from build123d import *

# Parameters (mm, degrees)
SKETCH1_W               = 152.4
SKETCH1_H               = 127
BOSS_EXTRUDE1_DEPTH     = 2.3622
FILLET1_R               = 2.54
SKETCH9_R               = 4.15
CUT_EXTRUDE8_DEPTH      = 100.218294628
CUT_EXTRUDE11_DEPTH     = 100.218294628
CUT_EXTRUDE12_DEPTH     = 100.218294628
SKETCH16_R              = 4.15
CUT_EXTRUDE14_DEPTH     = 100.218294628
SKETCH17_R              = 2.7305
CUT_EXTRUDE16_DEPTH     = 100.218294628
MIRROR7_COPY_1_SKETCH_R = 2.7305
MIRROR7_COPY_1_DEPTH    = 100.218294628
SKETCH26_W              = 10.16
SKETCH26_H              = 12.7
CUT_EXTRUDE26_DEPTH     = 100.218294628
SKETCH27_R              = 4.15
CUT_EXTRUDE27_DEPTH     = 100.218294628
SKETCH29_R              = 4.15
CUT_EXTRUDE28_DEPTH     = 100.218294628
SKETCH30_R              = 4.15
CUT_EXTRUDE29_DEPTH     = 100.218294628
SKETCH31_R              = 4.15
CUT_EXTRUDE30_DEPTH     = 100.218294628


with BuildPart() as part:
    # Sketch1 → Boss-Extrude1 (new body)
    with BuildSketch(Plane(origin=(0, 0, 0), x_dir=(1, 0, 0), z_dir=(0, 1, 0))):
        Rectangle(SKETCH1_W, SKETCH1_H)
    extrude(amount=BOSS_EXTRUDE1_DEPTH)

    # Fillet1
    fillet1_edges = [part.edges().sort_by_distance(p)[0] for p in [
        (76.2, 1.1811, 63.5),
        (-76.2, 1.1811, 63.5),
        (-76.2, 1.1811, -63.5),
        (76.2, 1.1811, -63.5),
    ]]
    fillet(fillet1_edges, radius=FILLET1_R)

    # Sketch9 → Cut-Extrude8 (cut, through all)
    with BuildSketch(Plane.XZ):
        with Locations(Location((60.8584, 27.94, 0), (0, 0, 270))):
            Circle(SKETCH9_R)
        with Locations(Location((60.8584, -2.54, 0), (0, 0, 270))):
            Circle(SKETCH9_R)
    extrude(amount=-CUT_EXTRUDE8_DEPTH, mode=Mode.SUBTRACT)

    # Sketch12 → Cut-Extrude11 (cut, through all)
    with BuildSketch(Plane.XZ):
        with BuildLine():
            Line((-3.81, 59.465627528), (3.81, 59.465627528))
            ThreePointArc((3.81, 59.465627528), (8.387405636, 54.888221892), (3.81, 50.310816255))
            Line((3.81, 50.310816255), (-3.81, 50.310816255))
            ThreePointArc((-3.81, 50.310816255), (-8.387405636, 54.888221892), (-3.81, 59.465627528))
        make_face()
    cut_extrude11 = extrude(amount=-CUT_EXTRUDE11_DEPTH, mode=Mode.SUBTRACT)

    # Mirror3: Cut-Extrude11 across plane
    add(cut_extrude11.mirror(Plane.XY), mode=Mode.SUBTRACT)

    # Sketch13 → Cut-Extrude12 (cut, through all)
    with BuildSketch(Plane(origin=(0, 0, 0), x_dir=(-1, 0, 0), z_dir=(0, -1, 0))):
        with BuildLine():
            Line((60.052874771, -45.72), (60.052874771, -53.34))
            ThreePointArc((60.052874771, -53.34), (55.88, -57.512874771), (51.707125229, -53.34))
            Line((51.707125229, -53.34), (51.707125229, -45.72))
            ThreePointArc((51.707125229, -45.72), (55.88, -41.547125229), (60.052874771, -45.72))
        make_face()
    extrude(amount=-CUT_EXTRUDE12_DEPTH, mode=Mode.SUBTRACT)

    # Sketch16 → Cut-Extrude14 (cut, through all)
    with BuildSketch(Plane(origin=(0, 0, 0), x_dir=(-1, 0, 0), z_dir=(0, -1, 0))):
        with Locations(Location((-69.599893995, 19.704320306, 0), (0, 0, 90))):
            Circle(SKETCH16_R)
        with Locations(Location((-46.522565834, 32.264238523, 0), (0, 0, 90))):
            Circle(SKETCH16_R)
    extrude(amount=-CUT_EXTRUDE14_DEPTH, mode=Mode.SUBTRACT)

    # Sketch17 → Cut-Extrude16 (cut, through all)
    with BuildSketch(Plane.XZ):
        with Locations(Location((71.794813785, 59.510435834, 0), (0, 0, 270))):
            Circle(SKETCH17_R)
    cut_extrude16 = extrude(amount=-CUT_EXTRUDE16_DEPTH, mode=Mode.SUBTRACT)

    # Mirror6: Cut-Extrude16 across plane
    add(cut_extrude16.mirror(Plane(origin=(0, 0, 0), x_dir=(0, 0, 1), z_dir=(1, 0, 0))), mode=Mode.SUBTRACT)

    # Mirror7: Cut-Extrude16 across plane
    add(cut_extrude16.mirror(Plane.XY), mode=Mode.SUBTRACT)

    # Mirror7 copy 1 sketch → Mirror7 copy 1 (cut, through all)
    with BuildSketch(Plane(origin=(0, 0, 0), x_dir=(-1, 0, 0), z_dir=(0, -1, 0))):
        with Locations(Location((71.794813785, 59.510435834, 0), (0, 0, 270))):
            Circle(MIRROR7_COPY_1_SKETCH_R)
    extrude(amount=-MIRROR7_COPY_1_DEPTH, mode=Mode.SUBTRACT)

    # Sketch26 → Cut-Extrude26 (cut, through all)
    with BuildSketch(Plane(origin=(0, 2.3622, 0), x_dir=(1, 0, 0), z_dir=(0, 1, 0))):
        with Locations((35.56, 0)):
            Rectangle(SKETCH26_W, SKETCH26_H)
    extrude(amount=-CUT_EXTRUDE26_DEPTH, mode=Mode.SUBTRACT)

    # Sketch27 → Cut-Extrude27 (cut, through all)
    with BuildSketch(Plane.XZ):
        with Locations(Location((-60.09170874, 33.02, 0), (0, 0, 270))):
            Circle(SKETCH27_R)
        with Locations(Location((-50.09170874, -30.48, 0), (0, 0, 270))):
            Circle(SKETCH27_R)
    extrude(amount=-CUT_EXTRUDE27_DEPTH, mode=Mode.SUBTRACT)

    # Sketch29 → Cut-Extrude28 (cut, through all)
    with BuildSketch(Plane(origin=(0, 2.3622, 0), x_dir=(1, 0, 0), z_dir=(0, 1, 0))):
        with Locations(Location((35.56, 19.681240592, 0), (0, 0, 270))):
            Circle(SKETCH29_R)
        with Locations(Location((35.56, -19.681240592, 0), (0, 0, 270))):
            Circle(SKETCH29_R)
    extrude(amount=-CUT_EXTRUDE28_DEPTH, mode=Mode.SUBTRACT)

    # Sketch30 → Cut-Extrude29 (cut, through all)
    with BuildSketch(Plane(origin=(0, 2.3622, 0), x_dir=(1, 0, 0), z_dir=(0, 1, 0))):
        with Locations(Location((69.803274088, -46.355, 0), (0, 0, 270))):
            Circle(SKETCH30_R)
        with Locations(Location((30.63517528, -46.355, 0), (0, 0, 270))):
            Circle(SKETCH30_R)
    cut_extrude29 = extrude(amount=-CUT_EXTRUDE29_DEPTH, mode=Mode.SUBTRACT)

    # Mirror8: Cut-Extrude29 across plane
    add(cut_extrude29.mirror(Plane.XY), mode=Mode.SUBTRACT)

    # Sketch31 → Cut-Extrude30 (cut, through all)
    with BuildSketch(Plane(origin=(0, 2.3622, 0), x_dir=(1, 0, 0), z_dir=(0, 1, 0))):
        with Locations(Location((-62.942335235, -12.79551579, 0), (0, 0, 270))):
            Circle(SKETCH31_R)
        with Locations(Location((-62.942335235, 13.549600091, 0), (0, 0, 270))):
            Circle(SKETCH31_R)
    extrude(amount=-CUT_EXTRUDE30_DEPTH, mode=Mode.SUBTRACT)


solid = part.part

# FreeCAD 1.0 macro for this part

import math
import FreeCAD as App
import Part
import Sketcher
from FreeCAD import Vector
Q = App.Units.Quantity


def edges_at(feature, points):
    """Names of the edges that pass closest to the given points."""
    edges = feature.Shape.Edges
    near = lambda p: min(range(len(edges)), key=lambda i: edges[i].distToShape(Part.Vertex(*p))[0])
    return sorted({f"Edge{near(p) + 1}" for p in points})

doc = App.newDocument("Part")
body = doc.addObject("PartDesign::Body", "Body")

sketch1 = body.newObject("Sketcher::SketchObject", "Sketch")
sketch1.AttachmentSupport = (doc.getObject("XZ_Plane"), [""])
sketch1.MapMode = "FlatFace"
sketch1.addGeometry(Part.LineSegment(Vector(-76.2, -63.5, 0), Vector(-76.2, 63.5, 0)), False)
sketch1.addGeometry(Part.LineSegment(Vector(-76.2, 63.5, 0), Vector(76.2, 63.5, 0)), False)
sketch1.addGeometry(Part.LineSegment(Vector(76.2, 63.5, 0), Vector(76.2, -63.5, 0)), False)
sketch1.addGeometry(Part.LineSegment(Vector(76.2, -63.5, 0), Vector(-76.2, -63.5, 0)), False)
sketch1.addConstraint(Sketcher.Constraint("Coincident", 0, 2, 1, 1))
sketch1.addConstraint(Sketcher.Constraint("Coincident", 1, 2, 2, 1))
sketch1.addConstraint(Sketcher.Constraint("Coincident", 2, 2, 3, 1))
sketch1.addConstraint(Sketcher.Constraint("Coincident", 3, 2, 0, 1))
sketch1.addConstraint(Sketcher.Constraint("Vertical", 0))
sketch1.addConstraint(Sketcher.Constraint("Horizontal", 1))
sketch1.addConstraint(Sketcher.Constraint("Vertical", 2))
sketch1.addConstraint(Sketcher.Constraint("Horizontal", 3))
sketch1.addConstraint(Sketcher.Constraint("Symmetric", 0, 2, 2, 2, -1, 1))
sketch1.addConstraint(Sketcher.Constraint("DistanceX", 1, 1, 1, 2, Q("6 in")))
sketch1.addConstraint(Sketcher.Constraint("DistanceY", 0, 1, 0, 2, Q("5 in")))
pad1 = body.newObject("PartDesign::Pad", "Pad")
pad1.Profile = sketch1
pad1.Length = Q("0.093 in")
pad1.Reversed = True
doc.recompute()

fillet = body.newObject("PartDesign::Fillet", "Fillet")
fillet.Base = (pad1, edges_at(pad1, [
    (76.2, 1.181, 63.5),
    (-76.2, 1.181, 63.5),
    (-76.2, 1.181, -63.5),
    (76.2, 1.181, -63.5),
]))
fillet.Radius = Q("0.1 in")

sketch2 = body.newObject("Sketcher::SketchObject", "Sketch001")
sketch2.AttachmentSupport = (doc.getObject("XZ_Plane"), [""])
sketch2.MapMode = "FlatFace"
sketch2.addGeometry(Part.Circle(Vector(60.8584, 27.94, 0), Vector(0, 0, 1), 4.15), False)
sketch2.addGeometry(Part.Circle(Vector(60.8584, -2.54, 0), Vector(0, 0, 1), 4.15), False)
sketch2.addConstraint(Sketcher.Constraint("Equal", 0, 1))
sketch2.addConstraint(Sketcher.Constraint("Vertical", 0, 3, 1, 3))
sketch2.addConstraint(Sketcher.Constraint("DistanceY", -1, 1, 0, 3, Q("1.1 in")))
sketch2.addConstraint(Sketcher.Constraint("DistanceY", 1, 3, -1, 1, Q("0.1 in")))
sketch2.addConstraint(Sketcher.Constraint("Diameter", 0, Q("8.3 mm")))
sketch2.addConstraint(Sketcher.Constraint("DistanceX", -1, 1, 0, 3, Q("2.396 in")))
pocket1 = body.newObject("PartDesign::Pocket", "Pocket")
pocket1.Profile = sketch2
pocket1.Type = "ThroughAll"

sketch3 = body.newObject("Sketcher::SketchObject", "Sketch002")
sketch3.AttachmentSupport = (doc.getObject("XZ_Plane"), [""])
sketch3.MapMode = "FlatFace"
sketch3.addGeometry(Part.LineSegment(Vector(3.81, 59.465628, 0), Vector(-3.81, 59.465628, 0)), False)
sketch3.addGeometry(Part.ArcOfCircle(Part.Circle(Vector(-3.81, 54.888222, 0), Vector(0, 0, 1), 4.577406), math.radians(90), math.radians(270)), False)
sketch3.addGeometry(Part.LineSegment(Vector(-3.81, 50.310816, 0), Vector(3.81, 50.310816, 0)), False)
sketch3.addGeometry(Part.ArcOfCircle(Part.Circle(Vector(3.81, 54.888222, 0), Vector(0, 0, 1), 4.577406), math.radians(-90), math.radians(90)), False)
sketch3.addConstraint(Sketcher.Constraint("Tangent", 0, 2, 1, 1))
sketch3.addConstraint(Sketcher.Constraint("Tangent", 1, 2, 2, 1))
sketch3.addConstraint(Sketcher.Constraint("Tangent", 2, 2, 3, 1))
sketch3.addConstraint(Sketcher.Constraint("Tangent", 3, 2, 0, 1))
sketch3.addConstraint(Sketcher.Constraint("Horizontal", 0))
sketch3.addConstraint(Sketcher.Constraint("Horizontal", 2))
sketch3.addConstraint(Sketcher.Constraint("DistanceX", 0, 2, 0, 1, Q("0.3 in")))
sketch3.addConstraint(Sketcher.Constraint("DistanceX", 1, 3, -1, 1, Q("0.15 in")))
sketch3.addConstraint(Sketcher.Constraint("Radius", 1, Q("4.577406 mm")))
sketch3.addConstraint(Sketcher.Constraint("DistanceY", -1, 1, 1, 3, Q("54.888222 mm")))
pocket2 = body.newObject("PartDesign::Pocket", "Pocket001")
pocket2.Profile = sketch3
pocket2.Type = "ThroughAll"
doc.recompute()

mirrored = body.newObject("PartDesign::Mirrored", "Mirrored")
mirrored.Originals = [pocket2]
mirrored.MirrorPlane = (doc.getObject("XY_Plane"), [""])
body.Tip = mirrored

sketch4 = body.newObject("Sketcher::SketchObject", "Sketch003")
sketch4.AttachmentSupport = (doc.getObject("XZ_Plane"), [""])
sketch4.MapMode = "FlatFace"
sketch4.addGeometry(Part.LineSegment(Vector(-60.052875, 53.34, 0), Vector(-60.052875, 45.72, 0)), False)
sketch4.addGeometry(Part.ArcOfCircle(Part.Circle(Vector(-55.88, 45.72, 0), Vector(0, 0, 1), 4.172875), math.radians(180), math.radians(360)), False)
sketch4.addGeometry(Part.LineSegment(Vector(-51.707125, 45.72, 0), Vector(-51.707125, 53.34, 0)), False)
sketch4.addGeometry(Part.ArcOfCircle(Part.Circle(Vector(-55.88, 53.34, 0), Vector(0, 0, 1), 4.172875), math.radians(0), math.radians(180)), False)
sketch4.addConstraint(Sketcher.Constraint("Tangent", 0, 2, 1, 1))
sketch4.addConstraint(Sketcher.Constraint("Tangent", 1, 2, 2, 1))
sketch4.addConstraint(Sketcher.Constraint("Tangent", 2, 2, 3, 1))
sketch4.addConstraint(Sketcher.Constraint("Tangent", 3, 2, 0, 1))
sketch4.addConstraint(Sketcher.Constraint("Vertical", 0))
sketch4.addConstraint(Sketcher.Constraint("Vertical", 2))
sketch4.addConstraint(Sketcher.Constraint("DistanceY", 0, 2, 0, 1, Q("0.3 in")))
sketch4.addConstraint(Sketcher.Constraint("DistanceX", 1, 3, -1, 1, Q("2.2 in")))
sketch4.addConstraint(Sketcher.Constraint("DistanceY", -1, 1, 1, 3, Q("1.8 in")))
sketch4.addConstraint(Sketcher.Constraint("Radius", 1, Q("4.172875 mm")))
pocket3 = body.newObject("PartDesign::Pocket", "Pocket002")
pocket3.Profile = sketch4
pocket3.Type = "ThroughAll"

sketch5 = body.newObject("Sketcher::SketchObject", "Sketch004")
sketch5.AttachmentSupport = (doc.getObject("XZ_Plane"), [""])
sketch5.MapMode = "FlatFace"
sketch5.addGeometry(Part.Circle(Vector(69.599894, -19.70432, 0), Vector(0, 0, 1), 4.15), False)
sketch5.addGeometry(Part.Circle(Vector(46.522566, -32.264239, 0), Vector(0, 0, 1), 4.15), False)
sketch5.addConstraint(Sketcher.Constraint("Equal", 0, 1))
sketch5.addConstraint(Sketcher.Constraint("Diameter", 0, Q("8.3 mm")))
sketch5.addConstraint(Sketcher.Constraint("DistanceY", 0, 3, -1, 1, Q("19.70432 mm")))
sketch5.addConstraint(Sketcher.Constraint("DistanceY", 1, 3, -1, 1, Q("32.264239 mm")))
sketch5.addConstraint(Sketcher.Constraint("DistanceX", 1, 3, 0, 3, Q("23.077328 mm")))
sketch5.addConstraint(Sketcher.Constraint("DistanceX", -1, 1, 0, 3, Q("69.599894 mm")))
pocket4 = body.newObject("PartDesign::Pocket", "Pocket003")
pocket4.Profile = sketch5
pocket4.Type = "ThroughAll"

sketch6 = body.newObject("Sketcher::SketchObject", "Sketch005")
sketch6.AttachmentSupport = (doc.getObject("XZ_Plane"), [""])
sketch6.MapMode = "FlatFace"
sketch6.addGeometry(Part.Circle(Vector(71.794814, 59.510436, 0), Vector(0, 0, 1), 2.7305), False)
sketch6.addConstraint(Sketcher.Constraint("Diameter", 0, Q("0.215 in")))
sketch6.addConstraint(Sketcher.Constraint("DistanceX", -1, 1, 0, 3, Q("71.794814 mm")))
sketch6.addConstraint(Sketcher.Constraint("DistanceY", -1, 1, 0, 3, Q("59.510436 mm")))
pocket5 = body.newObject("PartDesign::Pocket", "Pocket004")
pocket5.Profile = sketch6
pocket5.Type = "ThroughAll"
doc.recompute()

mirrored2 = body.newObject("PartDesign::Mirrored", "Mirrored001")
mirrored2.Originals = [pocket5]
mirrored2.MirrorPlane = (doc.getObject("YZ_Plane"), [""])
body.Tip = mirrored2
doc.recompute()

mirrored3 = body.newObject("PartDesign::Mirrored", "Mirrored002")
mirrored3.Originals = [pocket5]
mirrored3.MirrorPlane = (doc.getObject("XY_Plane"), [""])
body.Tip = mirrored3

sketch7 = body.newObject("Sketcher::SketchObject", "Sketch006")
sketch7.AttachmentSupport = (doc.getObject("XZ_Plane"), [""])
sketch7.MapMode = "FlatFace"
sketch7.addGeometry(Part.Circle(Vector(-71.794814, -59.510436, 0), Vector(0, 0, 1), 2.7305), False)
sketch7.addConstraint(Sketcher.Constraint("Diameter", 0, Q("0.215 in")))
sketch7.addConstraint(Sketcher.Constraint("DistanceX", 0, 3, -1, 1, Q("71.794814 mm")))
sketch7.addConstraint(Sketcher.Constraint("DistanceY", 0, 3, -1, 1, Q("59.510436 mm")))
pocket6 = body.newObject("PartDesign::Pocket", "Pocket005")
pocket6.Profile = sketch7
pocket6.Type = "ThroughAll"

sketch8 = body.newObject("Sketcher::SketchObject", "Sketch007")
sketch8.AttachmentSupport = (doc.getObject("XZ_Plane"), [""])
sketch8.MapMode = "FlatFace"
sketch8.AttachmentOffset = App.Placement(Vector(0, 0, -0.093 * 25.4), App.Rotation())
sketch8.addGeometry(Part.LineSegment(Vector(30.48, -6.35, 0), Vector(30.48, 6.35, 0)), False)
sketch8.addGeometry(Part.LineSegment(Vector(30.48, 6.35, 0), Vector(40.64, 6.35, 0)), False)
sketch8.addGeometry(Part.LineSegment(Vector(40.64, 6.35, 0), Vector(40.64, -6.35, 0)), False)
sketch8.addGeometry(Part.LineSegment(Vector(40.64, -6.35, 0), Vector(30.48, -6.35, 0)), False)
sketch8.addConstraint(Sketcher.Constraint("Coincident", 0, 2, 1, 1))
sketch8.addConstraint(Sketcher.Constraint("Coincident", 1, 2, 2, 1))
sketch8.addConstraint(Sketcher.Constraint("Coincident", 2, 2, 3, 1))
sketch8.addConstraint(Sketcher.Constraint("Coincident", 3, 2, 0, 1))
sketch8.addConstraint(Sketcher.Constraint("Vertical", 0))
sketch8.addConstraint(Sketcher.Constraint("Horizontal", 1))
sketch8.addConstraint(Sketcher.Constraint("Vertical", 2))
sketch8.addConstraint(Sketcher.Constraint("Horizontal", 3))
sketch8.addConstraint(Sketcher.Constraint("DistanceX", 1, 1, 1, 2, Q("0.4 in")))
sketch8.addConstraint(Sketcher.Constraint("DistanceY", 0, 1, 0, 2, Q("0.5 in")))
sketch8.addConstraint(Sketcher.Constraint("DistanceX", -1, 1, 0, 2, Q("1.2 in")))
sketch8.addConstraint(Sketcher.Constraint("DistanceY", -1, 1, 0, 2, Q("0.25 in")))
pocket7 = body.newObject("PartDesign::Pocket", "Pocket006")
pocket7.Profile = sketch8
pocket7.Type = "ThroughAll"
pocket7.Reversed = True

sketch9 = body.newObject("Sketcher::SketchObject", "Sketch008")
sketch9.AttachmentSupport = (doc.getObject("XZ_Plane"), [""])
sketch9.MapMode = "FlatFace"
sketch9.addGeometry(Part.Circle(Vector(-60.091709, 33.02, 0), Vector(0, 0, 1), 4.15), False)
sketch9.addGeometry(Part.Circle(Vector(-50.091709, -30.48, 0), Vector(0, 0, 1), 4.15), False)
sketch9.addConstraint(Sketcher.Constraint("Equal", 0, 1))
sketch9.addConstraint(Sketcher.Constraint("DistanceY", -1, 1, 0, 3, Q("1.3 in")))
sketch9.addConstraint(Sketcher.Constraint("DistanceY", 1, 3, -1, 1, Q("1.2 in")))
sketch9.addConstraint(Sketcher.Constraint("Diameter", 0, Q("8.3 mm")))
sketch9.addConstraint(Sketcher.Constraint("DistanceX", 0, 3, 1, 3, Q("10 mm")))
sketch9.addConstraint(Sketcher.Constraint("DistanceX", 0, 3, -1, 1, Q("60.091709 mm")))
pocket8 = body.newObject("PartDesign::Pocket", "Pocket007")
pocket8.Profile = sketch9
pocket8.Type = "ThroughAll"

sketch10 = body.newObject("Sketcher::SketchObject", "Sketch009")
sketch10.AttachmentSupport = (doc.getObject("XZ_Plane"), [""])
sketch10.MapMode = "FlatFace"
sketch10.AttachmentOffset = App.Placement(Vector(0, 0, -0.093 * 25.4), App.Rotation())
sketch10.addGeometry(Part.Circle(Vector(35.56, -19.681241, 0), Vector(0, 0, 1), 4.15), False)
sketch10.addGeometry(Part.Circle(Vector(35.56, 19.681241, 0), Vector(0, 0, 1), 4.15), False)
sketch10.addConstraint(Sketcher.Constraint("Equal", 0, 1))
sketch10.addConstraint(Sketcher.Constraint("Symmetric", 0, 3, 1, 3, -1))
sketch10.addConstraint(Sketcher.Constraint("DistanceX", -1, 1, 0, 3, Q("1.4 in")))
sketch10.addConstraint(Sketcher.Constraint("Diameter", 0, Q("8.3 mm")))
sketch10.addConstraint(Sketcher.Constraint("DistanceY", 0, 3, -1, 1, Q("19.681241 mm")))
pocket9 = body.newObject("PartDesign::Pocket", "Pocket008")
pocket9.Profile = sketch10
pocket9.Type = "ThroughAll"
pocket9.Reversed = True

sketch11 = body.newObject("Sketcher::SketchObject", "Sketch010")
sketch11.AttachmentSupport = (doc.getObject("XZ_Plane"), [""])
sketch11.MapMode = "FlatFace"
sketch11.AttachmentOffset = App.Placement(Vector(0, 0, -0.093 * 25.4), App.Rotation())
sketch11.addGeometry(Part.Circle(Vector(69.803274, 46.355, 0), Vector(0, 0, 1), 4.15), False)
sketch11.addGeometry(Part.Circle(Vector(30.635175, 46.355, 0), Vector(0, 0, 1), 4.15), False)
sketch11.addConstraint(Sketcher.Constraint("Equal", 0, 1))
sketch11.addConstraint(Sketcher.Constraint("Horizontal", 0, 3, 1, 3))
sketch11.addConstraint(Sketcher.Constraint("Diameter", 0, Q("8.3 mm")))
sketch11.addConstraint(Sketcher.Constraint("DistanceY", -1, 1, 0, 3, Q("1.825 in")))
sketch11.addConstraint(Sketcher.Constraint("DistanceX", 1, 3, 0, 3, Q("39.168099 mm")))
sketch11.addConstraint(Sketcher.Constraint("DistanceX", -1, 1, 0, 3, Q("69.803274 mm")))
pocket10 = body.newObject("PartDesign::Pocket", "Pocket009")
pocket10.Profile = sketch11
pocket10.Type = "ThroughAll"
pocket10.Reversed = True
doc.recompute()

mirrored4 = body.newObject("PartDesign::Mirrored", "Mirrored003")
mirrored4.Originals = [pocket10]
mirrored4.MirrorPlane = (doc.getObject("XY_Plane"), [""])
body.Tip = mirrored4

sketch12 = body.newObject("Sketcher::SketchObject", "Sketch011")
sketch12.AttachmentSupport = (doc.getObject("XZ_Plane"), [""])
sketch12.MapMode = "FlatFace"
sketch12.AttachmentOffset = App.Placement(Vector(0, 0, -0.093 * 25.4), App.Rotation())
sketch12.addGeometry(Part.Circle(Vector(-62.942335, 12.795516, 0), Vector(0, 0, 1), 4.15), False)
sketch12.addGeometry(Part.Circle(Vector(-62.942335, -13.5496, 0), Vector(0, 0, 1), 4.15), False)
sketch12.addConstraint(Sketcher.Constraint("Equal", 0, 1))
sketch12.addConstraint(Sketcher.Constraint("Vertical", 0, 3, 1, 3))
sketch12.addConstraint(Sketcher.Constraint("Diameter", 0, Q("8.3 mm")))
sketch12.addConstraint(Sketcher.Constraint("DistanceY", 1, 3, -1, 1, Q("13.5496 mm")))
sketch12.addConstraint(Sketcher.Constraint("DistanceX", 0, 3, -1, 1, Q("62.942335 mm")))
sketch12.addConstraint(Sketcher.Constraint("DistanceY", -1, 1, 0, 3, Q("12.795516 mm")))
pocket11 = body.newObject("PartDesign::Pocket", "Pocket010")
pocket11.Profile = sketch12
pocket11.Type = "ThroughAll"
pocket11.Reversed = True

doc.recompute()
